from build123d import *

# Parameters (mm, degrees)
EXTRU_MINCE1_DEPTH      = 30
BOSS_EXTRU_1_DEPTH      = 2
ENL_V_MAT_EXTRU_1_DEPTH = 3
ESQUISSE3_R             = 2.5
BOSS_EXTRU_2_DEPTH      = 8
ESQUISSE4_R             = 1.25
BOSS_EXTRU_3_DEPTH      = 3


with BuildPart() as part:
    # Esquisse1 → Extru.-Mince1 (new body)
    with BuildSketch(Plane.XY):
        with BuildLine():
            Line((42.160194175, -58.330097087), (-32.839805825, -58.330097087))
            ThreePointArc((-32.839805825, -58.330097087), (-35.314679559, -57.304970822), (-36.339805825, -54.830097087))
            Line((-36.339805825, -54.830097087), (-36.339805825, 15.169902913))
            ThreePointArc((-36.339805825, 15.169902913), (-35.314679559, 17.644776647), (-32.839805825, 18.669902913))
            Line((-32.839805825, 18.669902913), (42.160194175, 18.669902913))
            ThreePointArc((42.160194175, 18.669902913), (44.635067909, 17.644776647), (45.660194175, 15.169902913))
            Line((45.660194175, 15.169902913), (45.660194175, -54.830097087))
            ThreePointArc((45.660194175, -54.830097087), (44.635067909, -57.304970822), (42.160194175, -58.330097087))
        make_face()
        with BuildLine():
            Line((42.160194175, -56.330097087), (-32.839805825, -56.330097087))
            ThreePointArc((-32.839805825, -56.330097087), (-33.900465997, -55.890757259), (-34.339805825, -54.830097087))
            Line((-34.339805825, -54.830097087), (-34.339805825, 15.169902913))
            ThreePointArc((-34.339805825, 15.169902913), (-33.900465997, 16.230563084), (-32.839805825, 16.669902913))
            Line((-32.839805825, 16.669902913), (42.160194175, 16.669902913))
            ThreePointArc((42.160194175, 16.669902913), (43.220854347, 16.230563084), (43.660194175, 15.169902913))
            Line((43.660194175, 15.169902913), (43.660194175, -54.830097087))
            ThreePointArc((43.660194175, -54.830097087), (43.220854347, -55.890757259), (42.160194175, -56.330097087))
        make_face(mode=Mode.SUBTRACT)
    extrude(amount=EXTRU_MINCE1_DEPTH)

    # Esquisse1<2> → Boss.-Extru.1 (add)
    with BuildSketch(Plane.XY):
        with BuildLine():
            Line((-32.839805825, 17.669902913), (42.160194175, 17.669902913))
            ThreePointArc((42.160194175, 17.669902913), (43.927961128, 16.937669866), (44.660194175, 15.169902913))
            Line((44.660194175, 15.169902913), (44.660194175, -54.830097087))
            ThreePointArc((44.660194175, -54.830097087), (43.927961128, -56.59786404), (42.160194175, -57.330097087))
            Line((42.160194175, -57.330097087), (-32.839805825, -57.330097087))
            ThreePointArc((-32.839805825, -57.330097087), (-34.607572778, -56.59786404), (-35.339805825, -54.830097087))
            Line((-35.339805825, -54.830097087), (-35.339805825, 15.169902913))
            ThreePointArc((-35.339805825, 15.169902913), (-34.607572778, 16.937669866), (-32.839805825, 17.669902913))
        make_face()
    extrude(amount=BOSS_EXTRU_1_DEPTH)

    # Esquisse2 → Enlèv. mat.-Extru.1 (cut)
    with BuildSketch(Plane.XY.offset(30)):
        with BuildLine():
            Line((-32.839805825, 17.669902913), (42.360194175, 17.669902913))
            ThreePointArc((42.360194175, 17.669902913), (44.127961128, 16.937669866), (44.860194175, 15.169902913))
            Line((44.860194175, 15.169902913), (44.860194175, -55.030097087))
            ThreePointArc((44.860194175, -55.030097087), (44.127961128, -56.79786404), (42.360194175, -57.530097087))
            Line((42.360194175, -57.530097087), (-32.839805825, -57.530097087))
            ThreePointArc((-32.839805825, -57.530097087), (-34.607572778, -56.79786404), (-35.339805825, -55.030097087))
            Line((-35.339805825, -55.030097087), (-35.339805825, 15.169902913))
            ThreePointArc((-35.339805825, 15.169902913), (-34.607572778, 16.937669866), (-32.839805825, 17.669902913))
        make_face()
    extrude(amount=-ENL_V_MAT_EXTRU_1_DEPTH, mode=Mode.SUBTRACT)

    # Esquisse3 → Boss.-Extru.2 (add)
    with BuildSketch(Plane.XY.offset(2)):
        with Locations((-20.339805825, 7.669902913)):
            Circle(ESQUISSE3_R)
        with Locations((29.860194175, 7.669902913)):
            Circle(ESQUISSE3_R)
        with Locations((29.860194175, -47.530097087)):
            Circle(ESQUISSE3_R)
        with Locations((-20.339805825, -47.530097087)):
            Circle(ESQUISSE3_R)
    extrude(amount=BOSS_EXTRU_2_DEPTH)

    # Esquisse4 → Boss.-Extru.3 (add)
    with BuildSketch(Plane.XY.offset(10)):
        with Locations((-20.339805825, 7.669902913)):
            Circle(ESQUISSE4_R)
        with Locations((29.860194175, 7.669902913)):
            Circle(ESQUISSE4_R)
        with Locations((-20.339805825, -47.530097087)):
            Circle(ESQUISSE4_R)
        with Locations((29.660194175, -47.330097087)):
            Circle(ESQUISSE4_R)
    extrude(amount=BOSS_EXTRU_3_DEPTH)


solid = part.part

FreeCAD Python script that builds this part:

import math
import FreeCAD as App
import Part
import Sketcher

doc = App.newDocument("Part")
params = doc.addObject("Spreadsheet::Sheet", "Params")
for row, (alias, value) in enumerate([
    ("sketch1_radius", "3.5 mm"),
    ("sketch1_radius2", "1.5 mm"),
    ("sketch1_width", "75 mm"),
    ("sketch1_height", "70 mm"),
    ("pad1_length", "30 mm"),
    ("sketch2_radius", "2.5 mm"),
    ("sketch2_width", "75 mm"),
    ("sketch2_height", "70 mm"),
    ("pad2_length", "2 mm"),
    ("sketch3_radius", "2.5 mm"),
    ("sketch3_width", "75.2 mm"),
    ("sketch3_height", "70.2 mm"),
    ("pocket1_length", "3 mm"),
    ("sketch4_diameter", "5 mm"),
    ("pad3_length", "8 mm"),
    ("sketch5_diameter", "2.5 mm"),
    ("pad4_length", "3 mm"),
], start=1):
    params.set(f"A{row}", alias)
    params.set(f"B{row}", "=" + value)
    params.setAlias(f"B{row}", alias)

body = doc.addObject("PartDesign::Body", "Body")

# Sketch on XY plane
sketch1 = body.newObject("Sketcher::SketchObject", "Sketch")
sketch1.AttachmentSupport = (doc.getObject("XY_Plane"), [""])
sketch1.MapMode = "FlatFace"
sketch1.addGeometry([
    Part.LineSegment(App.Vector(-32.8, -58.3, 0), App.Vector(42.2, -58.3, 0)),  # 0
    Part.ArcOfCircle(Part.Circle(App.Vector(42.2, -54.8, 0), App.Vector(0, 0, 1), 3.5), math.radians(-90), math.radians(0)),  # 1
    Part.LineSegment(App.Vector(45.7, -54.8, 0), App.Vector(45.7, 15.2, 0)),  # 2
    Part.ArcOfCircle(Part.Circle(App.Vector(42.2, 15.2, 0), App.Vector(0, 0, 1), 3.5), math.radians(0), math.radians(90)),  # 3
    Part.LineSegment(App.Vector(42.2, 18.7, 0), App.Vector(-32.8, 18.7, 0)),  # 4
    Part.ArcOfCircle(Part.Circle(App.Vector(-32.8, 15.2, 0), App.Vector(0, 0, 1), 3.5), math.radians(90), math.radians(180)),  # 5
    Part.LineSegment(App.Vector(-36.3, 15.2, 0), App.Vector(-36.3, -54.8, 0)),  # 6
    Part.ArcOfCircle(Part.Circle(App.Vector(-32.8, -54.8, 0), App.Vector(0, 0, 1), 3.5), math.radians(180), math.radians(270)),  # 7
    Part.LineSegment(App.Vector(42.2, -56.3, 0), App.Vector(-32.8, -56.3, 0)),  # 8
    Part.ArcOfCircle(Part.Circle(App.Vector(-32.8, -54.8, 0), App.Vector(0, 0, 1), 1.5), math.radians(180), math.radians(270)),  # 9
    Part.LineSegment(App.Vector(-34.3, -54.8, 0), App.Vector(-34.3, 15.2, 0)),  # 10
    Part.ArcOfCircle(Part.Circle(App.Vector(-32.8, 15.2, 0), App.Vector(0, 0, 1), 1.5), math.radians(90), math.radians(180)),  # 11
    Part.LineSegment(App.Vector(-32.8, 16.7, 0), App.Vector(42.2, 16.7, 0)),  # 12
    Part.ArcOfCircle(Part.Circle(App.Vector(42.2, 15.2, 0), App.Vector(0, 0, 1), 1.5), math.radians(0), math.radians(90)),  # 13
    Part.LineSegment(App.Vector(43.7, 15.2, 0), App.Vector(43.7, -54.8, 0)),  # 14
    Part.ArcOfCircle(Part.Circle(App.Vector(42.2, -54.8, 0), App.Vector(0, 0, 1), 1.5), math.radians(-90), math.radians(0)),  # 15
], False)
sketch1.addConstraint([
    Sketcher.Constraint("Tangent", 0, 2, 1, 1),
    Sketcher.Constraint("Tangent", 1, 2, 2, 1),
    Sketcher.Constraint("Tangent", 2, 2, 3, 1),
    Sketcher.Constraint("Tangent", 3, 2, 4, 1),
    Sketcher.Constraint("Tangent", 4, 2, 5, 1),
    Sketcher.Constraint("Tangent", 5, 2, 6, 1),
    Sketcher.Constraint("Tangent", 6, 2, 7, 1),
    Sketcher.Constraint("Tangent", 7, 2, 0, 1),
    Sketcher.Constraint("Tangent", 8, 2, 9, 2),
    Sketcher.Constraint("Tangent", 9, 1, 10, 1),
    Sketcher.Constraint("Tangent", 10, 2, 11, 2),
    Sketcher.Constraint("Tangent", 11, 1, 12, 1),
    Sketcher.Constraint("Tangent", 12, 2, 13, 2),
    Sketcher.Constraint("Tangent", 13, 1, 14, 1),
    Sketcher.Constraint("Tangent", 14, 2, 15, 2),
    Sketcher.Constraint("Tangent", 15, 1, 8, 1),
    Sketcher.Constraint("Horizontal", 0),
    Sketcher.Constraint("Vertical", 2),
    Sketcher.Constraint("Horizontal", 4),
    Sketcher.Constraint("Vertical", 6),
    Sketcher.Constraint("Horizontal", 8),
    Sketcher.Constraint("Vertical", 10),
    Sketcher.Constraint("Horizontal", 12),
    Sketcher.Constraint("Vertical", 14),
    Sketcher.Constraint("Coincident", 9, 3, 7, 3),
    Sketcher.Constraint("Coincident", 11, 3, 5, 3),
    Sketcher.Constraint("Coincident", 13, 3, 3, 3),
    Sketcher.Constraint("Equal", 1, 3),
    Sketcher.Constraint("Equal", 3, 5),
    Sketcher.Constraint("Equal", 5, 7),
    Sketcher.Constraint("Equal", 13, 15),
    Sketcher.Constraint("Radius", 1, 3.5),
    Sketcher.Constraint("Radius", 9, 1.5),
    Sketcher.Constraint("DistanceX", 0, 1, 0, 2, 75.0),
    Sketcher.Constraint("DistanceY", 2, 1, 2, 2, 70.0),
    Sketcher.Constraint("DistanceX", -1, 1, 1, 3, 42.160194),
    Sketcher.Constraint("DistanceY", 1, 3, -1, 1, 54.830097),
])
sketch1.setExpression("Constraints[31]", "Params.sketch1_radius")
sketch1.setExpression("Constraints[32]", "Params.sketch1_radius2")
sketch1.setExpression("Constraints[33]", "Params.sketch1_width")
sketch1.setExpression("Constraints[34]", "Params.sketch1_height")
pad1 = body.newObject("PartDesign::Pad", "Pad")
pad1.Profile = sketch1
pad1.setExpression("Length", "Params.pad1_length")

# Sketch on XY plane
sketch2 = body.newObject("Sketcher::SketchObject", "Sketch001")
sketch2.AttachmentSupport = (doc.getObject("XY_Plane"), [""])
sketch2.MapMode = "FlatFace"
sketch2.addGeometry([
    Part.LineSegment(App.Vector(42.2, 17.7, 0), App.Vector(-32.8, 17.7, 0)),  # 0
    Part.ArcOfCircle(Part.Circle(App.Vector(-32.8, 15.2, 0), App.Vector(0, 0, 1), 2.5), math.radians(90), math.radians(180)),  # 1
    Part.LineSegment(App.Vector(-35.3, 15.2, 0), App.Vector(-35.3, -54.8, 0)),  # 2
    Part.ArcOfCircle(Part.Circle(App.Vector(-32.8, -54.8, 0), App.Vector(0, 0, 1), 2.5), math.radians(180), math.radians(270)),  # 3
    Part.LineSegment(App.Vector(-32.8, -57.3, 0), App.Vector(42.2, -57.3, 0)),  # 4
    Part.ArcOfCircle(Part.Circle(App.Vector(42.2, -54.8, 0), App.Vector(0, 0, 1), 2.5), math.radians(-90), math.radians(0)),  # 5
    Part.LineSegment(App.Vector(44.7, -54.8, 0), App.Vector(44.7, 15.2, 0)),  # 6
    Part.ArcOfCircle(Part.Circle(App.Vector(42.2, 15.2, 0), App.Vector(0, 0, 1), 2.5), math.radians(0), math.radians(90)),  # 7
], False)
sketch2.addConstraint([
    Sketcher.Constraint("Tangent", 0, 2, 1, 1),
    Sketcher.Constraint("Tangent", 1, 2, 2, 1),
    Sketcher.Constraint("Tangent", 2, 2, 3, 1),
    Sketcher.Constraint("Tangent", 3, 2, 4, 1),
    Sketcher.Constraint("Tangent", 4, 2, 5, 1),
    Sketcher.Constraint("Tangent", 5, 2, 6, 1),
    Sketcher.Constraint("Tangent", 6, 2, 7, 1),
    Sketcher.Constraint("Tangent", 7, 2, 0, 1),
    Sketcher.Constraint("Horizontal", 0),
    Sketcher.Constraint("Vertical", 2),
    Sketcher.Constraint("Horizontal", 4),
    Sketcher.Constraint("Vertical", 6),
    Sketcher.Constraint("Equal", 1, 3),
    Sketcher.Constraint("Equal", 3, 5),
    Sketcher.Constraint("Equal", 5, 7),
    Sketcher.Constraint("Radius", 1, 2.5),
    Sketcher.Constraint("DistanceX", 0, 2, 0, 1, 75.0),
    Sketcher.Constraint("DistanceY", 2, 2, 2, 1, 70.0),
    Sketcher.Constraint("DistanceX", 1, 3, -1, 1, 32.839806),
    Sketcher.Constraint("DistanceY", -1, 1, 1, 3, 15.169903),
])
sketch2.setExpression("Constraints[15]", "Params.sketch2_radius")
sketch2.setExpression("Constraints[16]", "Params.sketch2_width")
sketch2.setExpression("Constraints[17]", "Params.sketch2_height")
pad2 = body.newObject("PartDesign::Pad", "Pad001")
pad2.Profile = sketch2
pad2.setExpression("Length", "Params.pad2_length")

# Sketch on XY plane
sketch3 = body.newObject("Sketcher::SketchObject", "Sketch002")
sketch3.AttachmentSupport = (doc.getObject("XY_Plane"), [""])
sketch3.MapMode = "FlatFace"
sketch3.AttachmentOffset = App.Placement(App.Vector(0, 0, 30), App.Rotation())
sketch3.addGeometry([
    Part.LineSegment(App.Vector(42.4, 17.7, 0), App.Vector(-32.8, 17.7, 0)),  # 0
    Part.ArcOfCircle(Part.Circle(App.Vector(-32.8, 15.2, 0), App.Vector(0, 0, 1), 2.5), math.radians(90), math.radians(180)),  # 1
    Part.LineSegment(App.Vector(-35.3, 15.2, 0), App.Vector(-35.3, -55, 0)),  # 2
    Part.ArcOfCircle(Part.Circle(App.Vector(-32.8, -55, 0), App.Vector(0, 0, 1), 2.5), math.radians(180), math.radians(270)),  # 3
    Part.LineSegment(App.Vector(-32.8, -57.5, 0), App.Vector(42.4, -57.5, 0)),  # 4
    Part.ArcOfCircle(Part.Circle(App.Vector(42.4, -55, 0), App.Vector(0, 0, 1), 2.5), math.radians(-90), math.radians(0)),  # 5
    Part.LineSegment(App.Vector(44.9, -55, 0), App.Vector(44.9, 15.2, 0)),  # 6
    Part.ArcOfCircle(Part.Circle(App.Vector(42.4, 15.2, 0), App.Vector(0, 0, 1), 2.5), math.radians(0), math.radians(90)),  # 7
], False)
sketch3.addConstraint([
    Sketcher.Constraint("Tangent", 0, 2, 1, 1),
    Sketcher.Constraint("Tangent", 1, 2, 2, 1),
    Sketcher.Constraint("Tangent", 2, 2, 3, 1),
    Sketcher.Constraint("Tangent", 3, 2, 4, 1),
    Sketcher.Constraint("Tangent", 4, 2, 5, 1),
    Sketcher.Constraint("Tangent", 5, 2, 6, 1),
    Sketcher.Constraint("Tangent", 6, 2, 7, 1),
    Sketcher.Constraint("Tangent", 7, 2, 0, 1),
    Sketcher.Constraint("Horizontal", 0),
    Sketcher.Constraint("Vertical", 2),
    Sketcher.Constraint("Horizontal", 4),
    Sketcher.Constraint("Vertical", 6),
    Sketcher.Constraint("Equal", 1, 3),
    Sketcher.Constraint("Equal", 3, 5),
    Sketcher.Constraint("Equal", 5, 7),
    Sketcher.Constraint("Radius", 1, 2.5),
    Sketcher.Constraint("DistanceX", 0, 2, 0, 1, 75.2),
    Sketcher.Constraint("DistanceY", 2, 2, 2, 1, 70.2),
    Sketcher.Constraint("DistanceX", 1, 3, -1, 1, 32.839806),
    Sketcher.Constraint("DistanceY", -1, 1, 1, 3, 15.169903),
])
sketch3.setExpression("Constraints[15]", "Params.sketch3_radius")
sketch3.setExpression("Constraints[16]", "Params.sketch3_width")
sketch3.setExpression("Constraints[17]", "Params.sketch3_height")
pocket1 = body.newObject("PartDesign::Pocket", "Pocket")
pocket1.Profile = sketch3
pocket1.setExpression("Length", "Params.pocket1_length")

# Sketch on XY plane
sketch4 = body.newObject("Sketcher::SketchObject", "Sketch003")
sketch4.AttachmentSupport = (doc.getObject("XY_Plane"), [""])
sketch4.MapMode = "FlatFace"
sketch4.AttachmentOffset = App.Placement(App.Vector(0, 0, 2), App.Rotation())
sketch4.addGeometry([
    Part.Circle(App.Vector(-20.3, 7.7, 0), App.Vector(0, 0, 1), 2.5),
    Part.Circle(App.Vector(29.9, 7.7, 0), App.Vector(0, 0, 1), 2.5),
    Part.Circle(App.Vector(29.9, -47.5, 0), App.Vector(0, 0, 1), 2.5),
    Part.Circle(App.Vector(-20.3, -47.5, 0), App.Vector(0, 0, 1), 2.5),
], False)
sketch4.addConstraint([
    Sketcher.Constraint("Equal", 0, 1),
    Sketcher.Constraint("Equal", 1, 2),
    Sketcher.Constraint("Equal", 2, 3),
    Sketcher.Constraint("Horizontal", 0, 3, 1, 3),
    Sketcher.Constraint("Horizontal", 2, 3, 3, 3),
    Sketcher.Constraint("Vertical", 1, 3, 2, 3),
    Sketcher.Constraint("Vertical", 0, 3, 3, 3),
    Sketcher.Constraint("Diameter", 0, 5.0),
    Sketcher.Constraint("DistanceX", 0, 3, 1, 3, 50.2),
    Sketcher.Constraint("DistanceY", 2, 3, 1, 3, 55.2),
    Sketcher.Constraint("DistanceX", 0, 3, -1, 1, 20.339806),
    Sketcher.Constraint("DistanceY", -1, 1, 0, 3, 7.669903),
])
sketch4.setExpression("Constraints[7]", "Params.sketch4_diameter")
pad3 = body.newObject("PartDesign::Pad", "Pad002")
pad3.Profile = sketch4
pad3.setExpression("Length", "Params.pad3_length")

# Sketch on XY plane
sketch5 = body.newObject("Sketcher::SketchObject", "Sketch004")
sketch5.AttachmentSupport = (doc.getObject("XY_Plane"), [""])
sketch5.MapMode = "FlatFace"
sketch5.AttachmentOffset = App.Placement(App.Vector(0, 0, 10), App.Rotation())
sketch5.addGeometry([
    Part.Circle(App.Vector(-20.3, 7.7, 0), App.Vector(0, 0, 1), 1.2),
    Part.Circle(App.Vector(29.9, 7.7, 0), App.Vector(0, 0, 1), 1.2),
    Part.Circle(App.Vector(-20.3, -47.5, 0), App.Vector(0, 0, 1), 1.2),
    Part.Circle(App.Vector(29.7, -47.3, 0), App.Vector(0, 0, 1), 1.2),
], False)
sketch5.addConstraint([
    Sketcher.Constraint("Equal", 0, 1),
    Sketcher.Constraint("Equal", 1, 2),
    Sketcher.Constraint("Equal", 2, 3),
    Sketcher.Constraint("Horizontal", 0, 3, 1, 3),
    Sketcher.Constraint("Vertical", 0, 3, 2, 3),
    Sketcher.Constraint("Diameter", 0, 2.5),
    Sketcher.Constraint("DistanceX", 2, 3, 3, 3, 50.0),
    Sketcher.Constraint("DistanceY", 3, 3, 1, 3, 55.0),
    Sketcher.Constraint("DistanceX", 0, 3, 1, 3, 50.2),
    Sketcher.Constraint("DistanceY", 2, 3, 0, 3, 55.2),
    Sketcher.Constraint("DistanceX", 0, 3, -1, 1, 20.339806),
    Sketcher.Constraint("DistanceY", -1, 1, 0, 3, 7.669903),
])
sketch5.setExpression("Constraints[5]", "Params.sketch5_diameter")
pad4 = body.newObject("PartDesign::Pad", "Pad003")
pad4.Profile = sketch5
pad4.setExpression("Length", "Params.pad4_length")

doc.recompute()
